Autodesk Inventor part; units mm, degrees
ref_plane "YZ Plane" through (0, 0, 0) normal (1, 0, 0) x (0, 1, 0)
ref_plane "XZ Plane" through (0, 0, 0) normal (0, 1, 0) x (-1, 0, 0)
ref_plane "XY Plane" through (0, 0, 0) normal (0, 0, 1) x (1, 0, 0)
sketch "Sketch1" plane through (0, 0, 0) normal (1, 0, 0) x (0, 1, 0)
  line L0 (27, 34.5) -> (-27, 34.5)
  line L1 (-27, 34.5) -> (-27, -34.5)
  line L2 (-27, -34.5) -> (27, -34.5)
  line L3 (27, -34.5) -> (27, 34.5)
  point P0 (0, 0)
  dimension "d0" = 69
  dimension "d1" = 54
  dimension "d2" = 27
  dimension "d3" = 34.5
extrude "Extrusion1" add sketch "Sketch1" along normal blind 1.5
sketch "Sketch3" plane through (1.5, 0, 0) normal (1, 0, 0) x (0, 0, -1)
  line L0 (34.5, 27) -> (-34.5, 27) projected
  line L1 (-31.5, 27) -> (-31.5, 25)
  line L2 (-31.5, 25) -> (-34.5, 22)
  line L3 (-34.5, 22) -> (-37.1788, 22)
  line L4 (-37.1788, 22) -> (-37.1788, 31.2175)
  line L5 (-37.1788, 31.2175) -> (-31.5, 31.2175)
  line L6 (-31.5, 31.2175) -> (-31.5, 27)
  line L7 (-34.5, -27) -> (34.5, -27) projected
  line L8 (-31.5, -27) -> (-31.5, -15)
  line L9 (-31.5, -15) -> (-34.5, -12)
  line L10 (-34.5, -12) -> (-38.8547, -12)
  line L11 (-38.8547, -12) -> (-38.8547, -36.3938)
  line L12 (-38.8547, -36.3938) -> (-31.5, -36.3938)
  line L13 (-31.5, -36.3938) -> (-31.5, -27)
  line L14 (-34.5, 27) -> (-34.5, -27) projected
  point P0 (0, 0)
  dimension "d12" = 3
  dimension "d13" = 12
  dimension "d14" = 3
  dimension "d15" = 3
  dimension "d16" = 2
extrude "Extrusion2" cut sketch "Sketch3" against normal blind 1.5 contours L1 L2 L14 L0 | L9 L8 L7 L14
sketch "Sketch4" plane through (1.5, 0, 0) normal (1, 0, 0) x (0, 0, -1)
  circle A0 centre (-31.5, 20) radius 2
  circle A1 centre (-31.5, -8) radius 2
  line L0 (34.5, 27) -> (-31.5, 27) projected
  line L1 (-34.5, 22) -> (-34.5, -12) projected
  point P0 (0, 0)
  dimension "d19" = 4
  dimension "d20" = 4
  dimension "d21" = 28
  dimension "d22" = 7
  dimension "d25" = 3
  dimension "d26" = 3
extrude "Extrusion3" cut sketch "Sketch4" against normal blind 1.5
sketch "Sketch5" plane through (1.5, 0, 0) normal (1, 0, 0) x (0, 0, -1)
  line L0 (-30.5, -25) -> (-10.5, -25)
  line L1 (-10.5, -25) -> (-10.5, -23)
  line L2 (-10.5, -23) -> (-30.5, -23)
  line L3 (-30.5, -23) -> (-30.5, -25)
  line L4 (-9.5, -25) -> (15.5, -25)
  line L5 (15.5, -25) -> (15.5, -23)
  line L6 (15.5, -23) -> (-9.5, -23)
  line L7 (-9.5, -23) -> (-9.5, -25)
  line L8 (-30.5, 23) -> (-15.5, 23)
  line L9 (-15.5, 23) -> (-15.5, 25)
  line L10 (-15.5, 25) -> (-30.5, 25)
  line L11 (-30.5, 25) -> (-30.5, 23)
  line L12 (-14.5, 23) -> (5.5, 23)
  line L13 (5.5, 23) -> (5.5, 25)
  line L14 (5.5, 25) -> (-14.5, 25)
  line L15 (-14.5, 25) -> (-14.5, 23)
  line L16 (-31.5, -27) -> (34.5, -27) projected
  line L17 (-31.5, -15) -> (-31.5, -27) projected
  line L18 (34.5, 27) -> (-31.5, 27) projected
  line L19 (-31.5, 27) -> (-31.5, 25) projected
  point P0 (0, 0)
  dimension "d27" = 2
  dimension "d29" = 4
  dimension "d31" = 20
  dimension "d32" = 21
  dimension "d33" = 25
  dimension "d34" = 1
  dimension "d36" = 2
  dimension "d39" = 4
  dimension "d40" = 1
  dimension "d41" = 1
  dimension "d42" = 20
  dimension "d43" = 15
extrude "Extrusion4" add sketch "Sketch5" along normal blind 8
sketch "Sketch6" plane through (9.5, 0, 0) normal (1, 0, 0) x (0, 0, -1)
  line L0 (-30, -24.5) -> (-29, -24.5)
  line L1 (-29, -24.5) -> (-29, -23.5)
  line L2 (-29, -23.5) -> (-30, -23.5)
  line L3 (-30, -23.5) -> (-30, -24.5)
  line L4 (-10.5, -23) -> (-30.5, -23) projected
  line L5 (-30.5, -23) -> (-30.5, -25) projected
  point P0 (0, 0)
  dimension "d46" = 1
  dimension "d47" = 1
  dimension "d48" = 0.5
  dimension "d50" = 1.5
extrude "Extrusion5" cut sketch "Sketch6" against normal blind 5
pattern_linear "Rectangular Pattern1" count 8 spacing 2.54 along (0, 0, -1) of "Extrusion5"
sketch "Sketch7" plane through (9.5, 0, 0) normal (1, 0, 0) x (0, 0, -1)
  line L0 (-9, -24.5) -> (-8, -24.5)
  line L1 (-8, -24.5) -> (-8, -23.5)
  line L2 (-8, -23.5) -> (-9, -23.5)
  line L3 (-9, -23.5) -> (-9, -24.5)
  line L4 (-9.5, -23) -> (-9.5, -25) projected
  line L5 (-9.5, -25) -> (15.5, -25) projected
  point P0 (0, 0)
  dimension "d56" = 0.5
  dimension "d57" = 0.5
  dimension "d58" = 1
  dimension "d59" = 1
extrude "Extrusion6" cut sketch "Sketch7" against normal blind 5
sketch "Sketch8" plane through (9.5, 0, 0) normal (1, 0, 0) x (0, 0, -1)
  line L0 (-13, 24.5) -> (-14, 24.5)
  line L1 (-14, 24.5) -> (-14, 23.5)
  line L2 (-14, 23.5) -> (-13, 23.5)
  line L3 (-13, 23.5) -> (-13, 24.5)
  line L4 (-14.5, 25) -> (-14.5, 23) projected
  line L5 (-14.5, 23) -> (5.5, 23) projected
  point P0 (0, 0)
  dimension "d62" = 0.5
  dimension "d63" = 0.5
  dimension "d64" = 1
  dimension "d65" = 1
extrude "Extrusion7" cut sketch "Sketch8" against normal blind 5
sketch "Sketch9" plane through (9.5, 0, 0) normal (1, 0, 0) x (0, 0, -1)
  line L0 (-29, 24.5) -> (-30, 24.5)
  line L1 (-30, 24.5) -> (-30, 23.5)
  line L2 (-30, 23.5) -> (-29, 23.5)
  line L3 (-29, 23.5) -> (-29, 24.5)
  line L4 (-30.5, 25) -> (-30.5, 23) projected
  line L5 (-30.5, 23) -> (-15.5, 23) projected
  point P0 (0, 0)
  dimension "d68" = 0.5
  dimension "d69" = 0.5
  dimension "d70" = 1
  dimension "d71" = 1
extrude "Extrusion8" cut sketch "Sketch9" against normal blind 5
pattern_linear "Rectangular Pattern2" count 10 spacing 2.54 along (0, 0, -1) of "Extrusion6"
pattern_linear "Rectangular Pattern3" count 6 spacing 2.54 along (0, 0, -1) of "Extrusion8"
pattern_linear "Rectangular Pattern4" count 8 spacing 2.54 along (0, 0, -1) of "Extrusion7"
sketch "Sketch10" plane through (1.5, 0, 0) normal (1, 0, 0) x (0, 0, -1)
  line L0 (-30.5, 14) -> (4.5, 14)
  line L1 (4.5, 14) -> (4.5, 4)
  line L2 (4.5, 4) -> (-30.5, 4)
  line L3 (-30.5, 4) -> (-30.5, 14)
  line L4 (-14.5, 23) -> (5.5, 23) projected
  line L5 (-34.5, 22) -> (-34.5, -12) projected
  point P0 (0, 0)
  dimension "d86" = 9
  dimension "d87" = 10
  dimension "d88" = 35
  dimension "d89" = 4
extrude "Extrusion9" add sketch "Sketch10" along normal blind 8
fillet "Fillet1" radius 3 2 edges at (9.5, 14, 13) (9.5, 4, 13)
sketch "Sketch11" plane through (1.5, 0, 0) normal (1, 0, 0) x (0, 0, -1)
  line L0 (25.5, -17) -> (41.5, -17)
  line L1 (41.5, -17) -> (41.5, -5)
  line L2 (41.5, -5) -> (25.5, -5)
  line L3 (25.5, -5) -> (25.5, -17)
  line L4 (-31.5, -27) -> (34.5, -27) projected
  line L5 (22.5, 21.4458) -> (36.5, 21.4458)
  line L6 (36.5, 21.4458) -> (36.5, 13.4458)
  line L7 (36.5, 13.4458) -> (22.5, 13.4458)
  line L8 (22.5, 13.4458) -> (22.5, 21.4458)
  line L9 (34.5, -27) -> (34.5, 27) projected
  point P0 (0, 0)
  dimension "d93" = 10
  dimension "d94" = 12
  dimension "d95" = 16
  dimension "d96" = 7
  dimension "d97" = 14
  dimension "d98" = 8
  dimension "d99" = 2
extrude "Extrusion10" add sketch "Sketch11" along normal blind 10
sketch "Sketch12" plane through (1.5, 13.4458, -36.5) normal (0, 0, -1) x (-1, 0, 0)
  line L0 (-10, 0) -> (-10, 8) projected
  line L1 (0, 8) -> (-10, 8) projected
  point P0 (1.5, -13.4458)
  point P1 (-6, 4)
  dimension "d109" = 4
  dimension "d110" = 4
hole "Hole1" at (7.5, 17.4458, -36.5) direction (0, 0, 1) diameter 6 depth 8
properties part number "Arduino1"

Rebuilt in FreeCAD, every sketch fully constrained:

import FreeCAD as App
import Part
import Sketcher
from FreeCAD import Vector
Q = App.Units.Quantity


def edges_at(feature, points):
    """Names of the edges that pass closest to the given points."""
    edges = feature.Shape.Edges
    near = lambda p: min(range(len(edges)), key=lambda i: edges[i].distToShape(Part.Vertex(*p))[0])
    return sorted({f"Edge{near(p) + 1}" for p in points})


def add_polygon(sketch, points):
    """Adds a closed chain of lines whose ends are joined by coincident constraints."""
    first, n = sketch.GeometryCount, len(points)
    for a, b in zip(points, points[1:] + points[:1]):
        sketch.addGeometry(Part.LineSegment(App.Vector(*a, 0), App.Vector(*b, 0)), False)
    for i in range(n):
        sketch.addConstraint(Sketcher.Constraint("Coincident", first + i, 2, first + (i + 1) % n, 1))

doc = App.newDocument("Part")
body = doc.addObject("PartDesign::Body", "Body")

# Sketch on YZ plane
sketch1 = body.newObject("Sketcher::SketchObject", "Sketch")
sketch1.AttachmentSupport = (doc.getObject("YZ_Plane"), [""])
sketch1.MapMode = "FlatFace"
add_polygon(sketch1, [(27, -34), (27, 34), (-27, 34), (-27, -34)])  # lines 0-3
sketch1.addConstraint([
    Sketcher.Constraint("Vertical", 0),
    Sketcher.Constraint("Horizontal", 1),
    Sketcher.Constraint("Vertical", 2),
    Sketcher.Constraint("Horizontal", 3),
    Sketcher.Constraint("Symmetric", 0, 2, 2, 2, -1, 1),
    Sketcher.Constraint("DistanceX", 1, 2, 1, 1, Q("54 mm")),
    Sketcher.Constraint("DistanceY", 0, 1, 0, 2, Q("69 mm")),
])
pad1 = body.newObject("PartDesign::Pad", "Pad")
pad1.Profile = sketch1
pad1.Length = 1.5

# Sketch on YZ plane
sketch2 = body.newObject("Sketcher::SketchObject", "Sketch001")
sketch2.AttachmentSupport = (doc.getObject("YZ_Plane"), [""])
sketch2.MapMode = "FlatFace"
sketch2.AttachmentOffset = App.Placement(Vector(0, 0, 1.5), App.Rotation())
add_polygon(sketch2, [(25, 31.5), (27, 31.5), (27, 34.5), (22, 34.5)])  # lines 0-3
add_polygon(sketch2, [(-15, 31.5), (-12, 34.5), (-27, 34.5), (-27, 31.5)])  # lines 4-7
sketch2.addConstraint([
    Sketcher.Constraint("Horizontal", 0),
    Sketcher.Constraint("Vertical", 1),
    Sketcher.Constraint("Horizontal", 2),
    Sketcher.Constraint("Horizontal", 5),
    Sketcher.Constraint("Vertical", 6),
    Sketcher.Constraint("Horizontal", 7),
    Sketcher.Constraint("Symmetric", 1, 2, 5, 2, -2),
    Sketcher.Constraint("Perpendicular", 3, 4),
    Sketcher.Constraint("Horizontal", 3, 2, 6, 2),
    Sketcher.Constraint("Equal", 3, 4),
    Sketcher.Constraint("DistanceX", 0, 1, 0, 2, Q("2 mm")),
    Sketcher.Constraint("DistanceX", 7, 1, 7, 2, Q("12 mm")),
    Sketcher.Constraint("DistanceY", 1, 1, 1, 2, Q("3 mm")),
    Sketcher.Constraint("DistanceX", 4, 2, -1, 1, Q("12 mm")),
    Sketcher.Constraint("DistanceY", -1, 1, 0, 2, Q("31.5 mm")),
])
pocket1 = body.newObject("PartDesign::Pocket", "Pocket")
pocket1.Profile = sketch2
pocket1.Length = 1.5

# Sketch on YZ plane
sketch3 = body.newObject("Sketcher::SketchObject", "Sketch002")
sketch3.AttachmentSupport = (doc.getObject("YZ_Plane"), [""])
sketch3.MapMode = "FlatFace"
sketch3.AttachmentOffset = App.Placement(Vector(0, 0, 1.5), App.Rotation())
sketch3.addGeometry([
    Part.Circle(Vector(20, 31.5, 0), Vector(0, 0, 1), 2),
    Part.Circle(Vector(-8, 31.5, 0), Vector(0, 0, 1), 2),
], False)
sketch3.addConstraint([
    Sketcher.Constraint("Equal", 0, 1),
    Sketcher.Constraint("Horizontal", 0, 3, 1, 3),
    Sketcher.Constraint("Diameter", 0, Q("4 mm")),
    Sketcher.Constraint("DistanceX", 1, 3, 0, 3, Q("28 mm")),
    Sketcher.Constraint("DistanceX", -1, 1, 0, 3, Q("20 mm")),
    Sketcher.Constraint("DistanceY", -1, 1, 0, 3, Q("31.5 mm")),
])
pocket2 = body.newObject("PartDesign::Pocket", "Pocket001")
pocket2.Profile = sketch3
pocket2.Length = 1.5

# Sketch on YZ plane
sketch4 = body.newObject("Sketcher::SketchObject", "Sketch003")
sketch4.AttachmentSupport = (doc.getObject("YZ_Plane"), [""])
sketch4.MapMode = "FlatFace"
sketch4.AttachmentOffset = App.Placement(Vector(0, 0, 1.5), App.Rotation())
add_polygon(sketch4, [(-23, 30.5), (-25, 30.5), (-25, 10.5), (-23, 10.5)])  # lines 0-3
add_polygon(sketch4, [(-23, 9.5), (-25, 9.5), (-25, -15.5), (-23, -15.5)])  # lines 4-7
add_polygon(sketch4, [(25, 30.5), (23, 30.5), (23, 15.5), (25, 15.5)])  # lines 8-11
add_polygon(sketch4, [(25, 14.5), (23, 14.5), (23, -5.5), (25, -5.5)])  # lines 12-15
sketch4.addConstraint([
    Sketcher.Constraint("Horizontal", 0),
    Sketcher.Constraint("Vertical", 1),
    Sketcher.Constraint("Horizontal", 2),
    Sketcher.Constraint("Vertical", 3),
    Sketcher.Constraint("Horizontal", 4),
    Sketcher.Constraint("Vertical", 5),
    Sketcher.Constraint("Horizontal", 6),
    Sketcher.Constraint("Vertical", 7),
    Sketcher.Constraint("Horizontal", 8),
    Sketcher.Constraint("Vertical", 9),
    Sketcher.Constraint("Horizontal", 10),
    Sketcher.Constraint("Vertical", 11),
    Sketcher.Constraint("Horizontal", 12),
    Sketcher.Constraint("Vertical", 13),
    Sketcher.Constraint("Horizontal", 14),
    Sketcher.Constraint("Vertical", 15),
    Sketcher.Constraint("Symmetric", 6, 2, 9, 2, -1, 1),
    Sketcher.Constraint("Symmetric", 3, 2, 8, 2, -2),
    Sketcher.Constraint("Vertical", 1, 2, 4, 2),
    Sketcher.Constraint("Vertical", 9, 2, 12, 2),
    Sketcher.Constraint("Vertical", 11, 2, 14, 2),
    Sketcher.Constraint("Equal", 6, 8),
    Sketcher.Constraint("Equal", 3, 13),
    Sketcher.Constraint("DistanceX", 0, 2, 0, 1, Q("2 mm")),
    Sketcher.Constraint("DistanceY", 1, 2, 1, 1, Q("20 mm")),
    Sketcher.Constraint("DistanceY", 5, 2, 5, 1, Q("25 mm")),
    Sketcher.Constraint("DistanceY", 9, 2, 9, 1, Q("15 mm")),
    Sketcher.Constraint("DistanceX", 0, 2, -1, 1, Q("25 mm")),
    Sketcher.Constraint("DistanceY", 4, 2, 1, 2, Q("1 mm")),
    Sketcher.Constraint("DistanceY", 12, 2, 9, 2, Q("1 mm")),
])
pad2 = body.newObject("PartDesign::Pad", "Pad001")
pad2.Profile = sketch4
pad2.Length = 8

# Sketch on YZ plane
sketch5 = body.newObject("Sketcher::SketchObject", "Sketch004")
sketch5.AttachmentSupport = (doc.getObject("YZ_Plane"), [""])
sketch5.MapMode = "FlatFace"
sketch5.AttachmentOffset = App.Placement(Vector(0, 0, 9.5), App.Rotation())
add_polygon(sketch5, [(-23.5, 30), (-24.5, 30), (-24.5, 29), (-23.5, 29)])  # lines 0-3
sketch5.addConstraint([
    Sketcher.Constraint("Horizontal", 0),
    Sketcher.Constraint("Vertical", 1),
    Sketcher.Constraint("Horizontal", 2),
    Sketcher.Constraint("Vertical", 3),
    Sketcher.Constraint("Equal", 2, 1),
    Sketcher.Constraint("DistanceX", 0, 2, 0, 1, Q("1 mm")),
    Sketcher.Constraint("DistanceY", -1, 1, 0, 2, Q("30 mm")),
    Sketcher.Constraint("DistanceX", 0, 2, -1, 1, Q("24.5 mm")),
])
pocket3 = body.newObject("PartDesign::Pocket", "Pocket002")
pocket3.Profile = sketch5
pocket3.Length = 5
doc.recompute()

linearpattern = body.newObject("PartDesign::LinearPattern", "LinearPattern")
linearpattern.Originals = [pocket3]
linearpattern.Direction = (doc.getObject("Z_Axis"), [""])
linearpattern.Mode = "offset"
linearpattern.Offset = 2.54
linearpattern.Occurrences = 8
linearpattern.Reversed = True
body.Tip = linearpattern

# Sketch on YZ plane
sketch6 = body.newObject("Sketcher::SketchObject", "Sketch005")
sketch6.AttachmentSupport = (doc.getObject("YZ_Plane"), [""])
sketch6.MapMode = "FlatFace"
sketch6.AttachmentOffset = App.Placement(Vector(0, 0, 9.5), App.Rotation())
add_polygon(sketch6, [(-23.5, 9), (-24.5, 9), (-24.5, 8), (-23.5, 8)])  # lines 0-3
sketch6.addConstraint([
    Sketcher.Constraint("Horizontal", 0),
    Sketcher.Constraint("Vertical", 1),
    Sketcher.Constraint("Horizontal", 2),
    Sketcher.Constraint("Vertical", 3),
    Sketcher.Constraint("Equal", 2, 1),
    Sketcher.Constraint("DistanceX", 0, 2, 0, 1, Q("1 mm")),
    Sketcher.Constraint("DistanceY", -1, 1, 0, 2, Q("9 mm")),
    Sketcher.Constraint("DistanceX", 0, 2, -1, 1, Q("24.5 mm")),
])
pocket4 = body.newObject("PartDesign::Pocket", "Pocket003")
pocket4.Profile = sketch6
pocket4.Length = 5

# Sketch on YZ plane
sketch7 = body.newObject("Sketcher::SketchObject", "Sketch006")
sketch7.AttachmentSupport = (doc.getObject("YZ_Plane"), [""])
sketch7.MapMode = "FlatFace"
sketch7.AttachmentOffset = App.Placement(Vector(0, 0, 9.5), App.Rotation())
add_polygon(sketch7, [(23.5, 13), (24.5, 13), (24.5, 14), (23.5, 14)])  # lines 0-3
sketch7.addConstraint([
    Sketcher.Constraint("Horizontal", 0),
    Sketcher.Constraint("Vertical", 1),
    Sketcher.Constraint("Horizontal", 2),
    Sketcher.Constraint("Vertical", 3),
    Sketcher.Constraint("Equal", 2, 1),
    Sketcher.Constraint("DistanceX", 0, 1, 0, 2, Q("1 mm")),
    Sketcher.Constraint("DistanceY", -1, 1, 0, 2, Q("13 mm")),
    Sketcher.Constraint("DistanceX", -1, 1, 0, 2, Q("24.5 mm")),
])
pocket5 = body.newObject("PartDesign::Pocket", "Pocket004")
pocket5.Profile = sketch7
pocket5.Length = 5

# Sketch on YZ plane
sketch8 = body.newObject("Sketcher::SketchObject", "Sketch007")
sketch8.AttachmentSupport = (doc.getObject("YZ_Plane"), [""])
sketch8.MapMode = "FlatFace"
sketch8.AttachmentOffset = App.Placement(Vector(0, 0, 9.5), App.Rotation())
add_polygon(sketch8, [(23.5, 29), (24.5, 29), (24.5, 30), (23.5, 30)])  # lines 0-3
sketch8.addConstraint([
    Sketcher.Constraint("Horizontal", 0),
    Sketcher.Constraint("Vertical", 1),
    Sketcher.Constraint("Horizontal", 2),
    Sketcher.Constraint("Vertical", 3),
    Sketcher.Constraint("Equal", 2, 1),
    Sketcher.Constraint("DistanceX", 0, 1, 0, 2, Q("1 mm")),
    Sketcher.Constraint("DistanceY", -1, 1, 0, 2, Q("29 mm")),
    Sketcher.Constraint("DistanceX", -1, 1, 0, 2, Q("24.5 mm")),
])
pocket6 = body.newObject("PartDesign::Pocket", "Pocket005")
pocket6.Profile = sketch8
pocket6.Length = 5
doc.recompute()

linearpattern2 = body.newObject("PartDesign::LinearPattern", "LinearPattern001")
linearpattern2.Originals = [pocket4]
linearpattern2.Direction = (doc.getObject("Z_Axis"), [""])
linearpattern2.Mode = "offset"
linearpattern2.Offset = 2.54
linearpattern2.Occurrences = 10
linearpattern2.Reversed = True
body.Tip = linearpattern2
doc.recompute()

linearpattern3 = body.newObject("PartDesign::LinearPattern", "LinearPattern002")
linearpattern3.Originals = [pocket6]
linearpattern3.Direction = (doc.getObject("Z_Axis"), [""])
linearpattern3.Mode = "offset"
linearpattern3.Offset = 2.54
linearpattern3.Occurrences = 6
linearpattern3.Reversed = True
body.Tip = linearpattern3
doc.recompute()

linearpattern4 = body.newObject("PartDesign::LinearPattern", "LinearPattern003")
linearpattern4.Originals = [pocket5]
linearpattern4.Direction = (doc.getObject("Z_Axis"), [""])
linearpattern4.Mode = "offset"
linearpattern4.Offset = 2.54
linearpattern4.Occurrences = 8
linearpattern4.Reversed = True
body.Tip = linearpattern4

# Sketch on YZ plane
sketch9 = body.newObject("Sketcher::SketchObject", "Sketch008")
sketch9.AttachmentSupport = (doc.getObject("YZ_Plane"), [""])
sketch9.MapMode = "FlatFace"
sketch9.AttachmentOffset = App.Placement(Vector(0, 0, 1.5), App.Rotation())
add_polygon(sketch9, [(14, -4), (14, 30), (4, 30), (4, -4)])  # lines 0-3
sketch9.addConstraint([
    Sketcher.Constraint("Vertical", 0),
    Sketcher.Constraint("Horizontal", 1),
    Sketcher.Constraint("Vertical", 2),
    Sketcher.Constraint("Horizontal", 3),
    Sketcher.Constraint("DistanceX", 1, 2, 1, 1, Q("10 mm")),
    Sketcher.Constraint("DistanceY", 0, 1, 0, 2, Q("35 mm")),
    Sketcher.Constraint("DistanceX", -1, 1, 1, 2, Q("4 mm")),
    Sketcher.Constraint("DistanceY", -1, 1, 0, 2, Q("30.5 mm")),
])
pad3 = body.newObject("PartDesign::Pad", "Pad002")
pad3.Profile = sketch9
pad3.Length = 8
doc.recompute()

fillet = body.newObject("PartDesign::Fillet", "Fillet")
fillet.Base = (pad3, edges_at(pad3, [(9.5, 14, 13), (9.5, 4, 13)]))
fillet.Radius = 3

# Sketch on YZ plane
sketch10 = body.newObject("Sketcher::SketchObject", "Sketch009")
sketch10.AttachmentSupport = (doc.getObject("YZ_Plane"), [""])
sketch10.MapMode = "FlatFace"
sketch10.AttachmentOffset = App.Placement(Vector(0, 0, 1.5), App.Rotation())
add_polygon(sketch10, [(-5, -26), (-17, -26), (-17, -42), (-5, -42)])  # lines 0-3
add_polygon(sketch10, [(13, -22), (13, -36), (21, -36), (21, -22)])  # lines 4-7
sketch10.addConstraint([
    Sketcher.Constraint("Horizontal", 0),
    Sketcher.Constraint("Vertical", 1),
    Sketcher.Constraint("Horizontal", 2),
    Sketcher.Constraint("Vertical", 3),
    Sketcher.Constraint("Vertical", 4),
    Sketcher.Constraint("Horizontal", 5),
    Sketcher.Constraint("Vertical", 6),
    Sketcher.Constraint("Horizontal", 7),
    Sketcher.Constraint("DistanceX", 0, 2, 0, 1, Q("12 mm")),
    Sketcher.Constraint("DistanceX", 5, 1, 5, 2, Q("8 mm")),
    Sketcher.Constraint("DistanceY", 1, 2, 1, 1, Q("16 mm")),
    Sketcher.Constraint("DistanceY", 4, 2, 4, 1, Q("14 mm")),
    Sketcher.Constraint("DistanceX", 0, 2, -1, 1, Q("17 mm")),
    Sketcher.Constraint("DistanceY", 2, 2, 4, 2, Q("5 mm")),
    Sketcher.Constraint("DistanceY", 0, 2, -1, 1, Q("25.5 mm")),
    Sketcher.Constraint("DistanceX", -1, 1, 4, 2, Q("13.4458 mm")),
])
pad4 = body.newObject("PartDesign::Pad", "Pad003")
pad4.Profile = sketch10
pad4.Length = 10

# Sketch on XY plane
sketch11 = body.newObject("Sketcher::SketchObject", "Sketch010")
sketch11.AttachmentSupport = (doc.getObject("XY_Plane"), [""])
sketch11.MapMode = "FlatFace"
sketch11.AttachmentOffset = App.Placement(Vector(0, 0, -36.5), App.Rotation())
sketch11.addGeometry(Part.Circle(Vector(7.5, 17.4, 0), Vector(0, 0, 1), 3), False)
sketch11.addConstraint([
    Sketcher.Constraint("Diameter", 0, Q("6 mm")),
    Sketcher.Constraint("DistanceX", -1, 1, 0, 3, Q("7.5 mm")),
    Sketcher.Constraint("DistanceY", -1, 1, 0, 3, Q("17.4458 mm")),
])
doc.recompute()
hole = body.newObject("PartDesign::Hole", "Hole")
hole.Profile = sketch11
hole.ThreadType = "None"
hole.Diameter = 6
hole.DepthType = "Dimension"
hole.Depth = 8
hole.DrillPoint = "Flat"
hole.Reversed = True

doc.recompute()
